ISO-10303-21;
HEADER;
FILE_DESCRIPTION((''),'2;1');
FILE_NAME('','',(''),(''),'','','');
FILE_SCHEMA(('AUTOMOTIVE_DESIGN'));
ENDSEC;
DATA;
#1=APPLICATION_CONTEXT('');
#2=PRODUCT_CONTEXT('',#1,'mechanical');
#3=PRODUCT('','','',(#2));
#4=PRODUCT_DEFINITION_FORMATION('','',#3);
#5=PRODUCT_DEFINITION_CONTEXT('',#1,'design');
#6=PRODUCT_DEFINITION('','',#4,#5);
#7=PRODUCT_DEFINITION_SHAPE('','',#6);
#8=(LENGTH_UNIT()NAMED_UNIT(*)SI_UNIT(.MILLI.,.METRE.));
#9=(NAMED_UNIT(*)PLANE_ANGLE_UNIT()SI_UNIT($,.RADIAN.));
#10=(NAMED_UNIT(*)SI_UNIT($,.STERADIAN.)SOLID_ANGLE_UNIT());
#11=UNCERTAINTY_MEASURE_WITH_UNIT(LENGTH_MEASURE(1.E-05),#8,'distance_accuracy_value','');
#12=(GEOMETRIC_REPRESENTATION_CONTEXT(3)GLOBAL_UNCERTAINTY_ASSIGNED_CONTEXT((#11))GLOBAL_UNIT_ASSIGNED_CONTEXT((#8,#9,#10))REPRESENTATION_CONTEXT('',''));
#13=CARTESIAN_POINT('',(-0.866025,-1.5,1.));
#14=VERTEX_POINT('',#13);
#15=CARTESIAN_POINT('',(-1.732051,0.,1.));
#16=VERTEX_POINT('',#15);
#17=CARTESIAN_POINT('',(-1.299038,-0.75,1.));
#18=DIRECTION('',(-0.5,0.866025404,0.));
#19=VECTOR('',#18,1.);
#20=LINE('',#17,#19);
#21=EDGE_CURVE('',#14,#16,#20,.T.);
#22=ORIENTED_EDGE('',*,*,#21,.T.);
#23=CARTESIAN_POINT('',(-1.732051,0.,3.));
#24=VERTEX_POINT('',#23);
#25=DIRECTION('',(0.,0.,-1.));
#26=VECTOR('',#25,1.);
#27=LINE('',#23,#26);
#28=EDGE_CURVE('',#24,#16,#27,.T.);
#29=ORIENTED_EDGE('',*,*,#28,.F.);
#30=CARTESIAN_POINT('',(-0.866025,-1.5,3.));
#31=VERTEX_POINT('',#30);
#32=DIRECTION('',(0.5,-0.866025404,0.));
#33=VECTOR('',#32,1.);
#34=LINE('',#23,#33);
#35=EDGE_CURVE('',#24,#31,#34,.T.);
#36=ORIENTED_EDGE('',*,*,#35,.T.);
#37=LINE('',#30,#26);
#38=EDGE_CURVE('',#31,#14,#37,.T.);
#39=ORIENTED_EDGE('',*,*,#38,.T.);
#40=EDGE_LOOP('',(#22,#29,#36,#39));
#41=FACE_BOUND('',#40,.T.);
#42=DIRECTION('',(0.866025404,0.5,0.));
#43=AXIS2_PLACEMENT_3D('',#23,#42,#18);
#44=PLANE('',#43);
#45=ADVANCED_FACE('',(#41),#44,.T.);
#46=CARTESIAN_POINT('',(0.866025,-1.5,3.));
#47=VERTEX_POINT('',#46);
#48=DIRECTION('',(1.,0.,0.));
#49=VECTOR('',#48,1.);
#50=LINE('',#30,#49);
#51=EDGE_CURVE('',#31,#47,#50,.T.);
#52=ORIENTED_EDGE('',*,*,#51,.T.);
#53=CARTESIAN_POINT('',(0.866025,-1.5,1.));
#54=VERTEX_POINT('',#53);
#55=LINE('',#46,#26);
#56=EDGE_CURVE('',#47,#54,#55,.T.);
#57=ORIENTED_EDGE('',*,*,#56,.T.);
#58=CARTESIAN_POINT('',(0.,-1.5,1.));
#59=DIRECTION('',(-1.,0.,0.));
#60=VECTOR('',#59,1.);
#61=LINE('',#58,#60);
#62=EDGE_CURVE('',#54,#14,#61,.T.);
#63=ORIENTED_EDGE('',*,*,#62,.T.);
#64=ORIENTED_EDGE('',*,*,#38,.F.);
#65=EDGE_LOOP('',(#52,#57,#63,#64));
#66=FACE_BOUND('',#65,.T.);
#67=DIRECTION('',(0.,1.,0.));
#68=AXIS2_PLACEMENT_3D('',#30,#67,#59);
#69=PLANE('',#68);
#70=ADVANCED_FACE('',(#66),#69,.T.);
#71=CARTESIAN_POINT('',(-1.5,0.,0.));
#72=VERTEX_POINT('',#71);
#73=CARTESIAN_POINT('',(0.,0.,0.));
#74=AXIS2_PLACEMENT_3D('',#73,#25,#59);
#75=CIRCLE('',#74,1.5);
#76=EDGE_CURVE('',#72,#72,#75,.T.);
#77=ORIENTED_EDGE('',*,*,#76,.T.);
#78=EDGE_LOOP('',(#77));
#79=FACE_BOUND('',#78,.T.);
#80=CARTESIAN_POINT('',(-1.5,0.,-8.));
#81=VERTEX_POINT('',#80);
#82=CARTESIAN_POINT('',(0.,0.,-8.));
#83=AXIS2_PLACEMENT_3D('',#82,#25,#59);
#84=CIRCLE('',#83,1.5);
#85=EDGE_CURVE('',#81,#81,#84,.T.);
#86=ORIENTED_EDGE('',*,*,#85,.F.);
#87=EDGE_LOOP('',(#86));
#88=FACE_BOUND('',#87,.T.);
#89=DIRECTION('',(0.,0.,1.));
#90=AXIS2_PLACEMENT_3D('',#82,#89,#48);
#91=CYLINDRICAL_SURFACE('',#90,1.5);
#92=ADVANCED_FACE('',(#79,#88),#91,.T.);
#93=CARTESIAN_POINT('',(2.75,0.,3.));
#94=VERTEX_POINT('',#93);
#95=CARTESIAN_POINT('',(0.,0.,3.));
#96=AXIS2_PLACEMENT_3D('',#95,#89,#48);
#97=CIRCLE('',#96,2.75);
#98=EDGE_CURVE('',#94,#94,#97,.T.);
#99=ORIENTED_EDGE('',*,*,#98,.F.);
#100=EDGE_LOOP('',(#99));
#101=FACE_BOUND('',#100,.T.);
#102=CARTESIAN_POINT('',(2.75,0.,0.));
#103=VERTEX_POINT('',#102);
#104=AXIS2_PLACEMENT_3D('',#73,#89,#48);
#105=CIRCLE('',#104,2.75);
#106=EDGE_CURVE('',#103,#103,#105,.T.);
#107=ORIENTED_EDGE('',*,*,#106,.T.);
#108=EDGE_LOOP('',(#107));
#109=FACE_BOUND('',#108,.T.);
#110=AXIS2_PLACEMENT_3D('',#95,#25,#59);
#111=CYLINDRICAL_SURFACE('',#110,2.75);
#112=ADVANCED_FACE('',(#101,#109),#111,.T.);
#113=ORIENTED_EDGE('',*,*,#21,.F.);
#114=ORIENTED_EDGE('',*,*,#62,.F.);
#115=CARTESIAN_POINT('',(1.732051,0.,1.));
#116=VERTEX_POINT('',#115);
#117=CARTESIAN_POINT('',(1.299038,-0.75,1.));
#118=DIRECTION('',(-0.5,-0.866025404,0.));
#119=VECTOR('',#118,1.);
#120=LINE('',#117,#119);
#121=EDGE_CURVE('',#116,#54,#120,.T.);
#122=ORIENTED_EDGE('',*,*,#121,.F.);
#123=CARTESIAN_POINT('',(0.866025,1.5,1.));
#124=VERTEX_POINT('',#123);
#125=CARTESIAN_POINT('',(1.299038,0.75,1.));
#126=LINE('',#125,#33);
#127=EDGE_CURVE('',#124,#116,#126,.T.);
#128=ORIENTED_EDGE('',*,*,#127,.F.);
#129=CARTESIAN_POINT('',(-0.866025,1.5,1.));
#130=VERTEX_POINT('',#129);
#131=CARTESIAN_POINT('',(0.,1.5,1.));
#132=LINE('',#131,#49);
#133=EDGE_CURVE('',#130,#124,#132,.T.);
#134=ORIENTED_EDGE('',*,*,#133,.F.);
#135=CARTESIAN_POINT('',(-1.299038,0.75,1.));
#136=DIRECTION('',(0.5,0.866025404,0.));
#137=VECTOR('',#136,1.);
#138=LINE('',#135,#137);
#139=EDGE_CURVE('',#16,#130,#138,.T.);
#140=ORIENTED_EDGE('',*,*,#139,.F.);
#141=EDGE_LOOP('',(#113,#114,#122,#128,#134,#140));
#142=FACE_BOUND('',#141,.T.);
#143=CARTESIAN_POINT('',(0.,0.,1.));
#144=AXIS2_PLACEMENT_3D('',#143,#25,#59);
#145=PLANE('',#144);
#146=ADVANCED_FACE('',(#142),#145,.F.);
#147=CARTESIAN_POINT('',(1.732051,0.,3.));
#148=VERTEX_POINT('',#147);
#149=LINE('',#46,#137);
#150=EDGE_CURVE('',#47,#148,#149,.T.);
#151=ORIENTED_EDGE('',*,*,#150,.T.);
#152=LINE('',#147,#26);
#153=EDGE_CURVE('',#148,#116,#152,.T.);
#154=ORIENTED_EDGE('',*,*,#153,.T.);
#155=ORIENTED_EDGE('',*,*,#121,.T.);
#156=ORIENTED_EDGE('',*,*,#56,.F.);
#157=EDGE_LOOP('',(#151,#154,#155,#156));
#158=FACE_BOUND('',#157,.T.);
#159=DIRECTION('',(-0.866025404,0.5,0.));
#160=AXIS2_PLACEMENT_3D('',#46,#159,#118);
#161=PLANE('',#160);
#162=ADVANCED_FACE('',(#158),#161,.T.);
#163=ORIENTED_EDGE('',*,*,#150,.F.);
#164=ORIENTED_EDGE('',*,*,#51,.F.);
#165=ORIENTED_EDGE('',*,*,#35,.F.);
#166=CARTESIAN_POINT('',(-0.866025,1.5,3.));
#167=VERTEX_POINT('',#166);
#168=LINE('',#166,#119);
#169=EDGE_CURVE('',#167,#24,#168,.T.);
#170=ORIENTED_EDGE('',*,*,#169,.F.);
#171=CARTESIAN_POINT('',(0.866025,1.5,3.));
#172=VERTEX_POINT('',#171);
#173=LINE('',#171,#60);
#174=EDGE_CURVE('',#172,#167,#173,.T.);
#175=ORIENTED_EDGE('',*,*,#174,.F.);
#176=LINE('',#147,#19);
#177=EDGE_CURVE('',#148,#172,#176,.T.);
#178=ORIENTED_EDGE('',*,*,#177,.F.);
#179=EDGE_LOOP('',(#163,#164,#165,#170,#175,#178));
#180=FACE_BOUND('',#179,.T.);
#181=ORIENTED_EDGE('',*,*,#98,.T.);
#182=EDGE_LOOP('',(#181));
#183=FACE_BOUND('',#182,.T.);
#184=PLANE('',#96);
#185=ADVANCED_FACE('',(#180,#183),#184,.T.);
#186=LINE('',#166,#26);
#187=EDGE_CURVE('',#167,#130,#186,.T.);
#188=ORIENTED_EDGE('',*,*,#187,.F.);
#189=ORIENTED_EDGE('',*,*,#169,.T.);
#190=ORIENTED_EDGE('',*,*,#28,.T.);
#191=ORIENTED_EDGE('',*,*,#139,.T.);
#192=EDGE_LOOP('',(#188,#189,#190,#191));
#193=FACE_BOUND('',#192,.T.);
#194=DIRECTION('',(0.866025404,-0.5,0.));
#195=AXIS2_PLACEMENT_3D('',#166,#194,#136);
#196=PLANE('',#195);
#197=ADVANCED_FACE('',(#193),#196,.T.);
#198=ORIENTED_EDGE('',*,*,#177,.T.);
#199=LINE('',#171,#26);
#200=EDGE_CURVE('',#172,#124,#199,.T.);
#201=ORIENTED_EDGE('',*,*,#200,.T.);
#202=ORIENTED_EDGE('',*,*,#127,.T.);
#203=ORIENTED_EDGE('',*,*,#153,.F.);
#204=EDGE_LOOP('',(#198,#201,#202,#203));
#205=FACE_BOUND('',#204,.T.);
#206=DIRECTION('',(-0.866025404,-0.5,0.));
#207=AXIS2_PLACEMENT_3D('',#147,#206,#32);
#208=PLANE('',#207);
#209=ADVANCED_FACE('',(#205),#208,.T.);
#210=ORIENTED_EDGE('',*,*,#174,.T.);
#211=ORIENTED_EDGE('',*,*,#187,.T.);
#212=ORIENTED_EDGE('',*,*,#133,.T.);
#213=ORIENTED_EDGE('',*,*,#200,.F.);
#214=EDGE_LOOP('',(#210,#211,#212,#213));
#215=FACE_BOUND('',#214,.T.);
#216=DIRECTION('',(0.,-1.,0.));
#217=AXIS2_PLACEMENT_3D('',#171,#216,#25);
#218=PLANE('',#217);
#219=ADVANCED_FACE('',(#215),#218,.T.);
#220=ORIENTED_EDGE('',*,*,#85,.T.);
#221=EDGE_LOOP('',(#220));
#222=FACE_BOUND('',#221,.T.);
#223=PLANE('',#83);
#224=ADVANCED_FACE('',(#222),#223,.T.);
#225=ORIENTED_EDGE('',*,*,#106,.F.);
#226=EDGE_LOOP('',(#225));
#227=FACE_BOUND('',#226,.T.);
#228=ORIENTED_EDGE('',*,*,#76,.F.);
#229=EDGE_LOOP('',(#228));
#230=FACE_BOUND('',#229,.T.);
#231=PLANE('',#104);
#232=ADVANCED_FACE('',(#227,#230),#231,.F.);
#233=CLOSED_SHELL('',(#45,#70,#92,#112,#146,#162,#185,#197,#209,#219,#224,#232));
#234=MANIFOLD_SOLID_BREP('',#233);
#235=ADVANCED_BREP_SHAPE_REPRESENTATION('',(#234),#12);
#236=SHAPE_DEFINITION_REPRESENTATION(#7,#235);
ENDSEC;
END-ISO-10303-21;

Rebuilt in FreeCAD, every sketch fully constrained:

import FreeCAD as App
import Part
import Sketcher
Q = App.Units.Quantity

doc = App.newDocument("Part")
body = doc.addObject("PartDesign::Body", "Body")

sketch1 = body.newObject("Sketcher::SketchObject", "Sketch")
sketch1.AttachmentSupport = (doc.getObject("XY_Plane"), [""])
sketch1.MapMode = "FlatFace"
sketch1.addGeometry(Part.Circle(App.Vector(0, 0, 0), App.Vector(0, 0, 1), 2.8), False)
sketch1.addGeometry(Part.LineSegment(App.Vector(0.9, 1.5, 0), App.Vector(1.7, 0, 0)), False)
sketch1.addGeometry(Part.LineSegment(App.Vector(1.7, 0, 0), App.Vector(0.9, -1.5, 0)), False)
sketch1.addGeometry(Part.LineSegment(App.Vector(0.9, -1.5, 0), App.Vector(-0.9, -1.5, 0)), False)
sketch1.addGeometry(Part.LineSegment(App.Vector(-0.9, -1.5, 0), App.Vector(-1.7, 0, 0)), False)
sketch1.addGeometry(Part.LineSegment(App.Vector(-1.7, 0, 0), App.Vector(-0.9, 1.5, 0)), False)
sketch1.addGeometry(Part.LineSegment(App.Vector(-0.9, 1.5, 0), App.Vector(0.9, 1.5, 0)), False)
sketch1.addConstraint(Sketcher.Constraint("Coincident", 1, 2, 2, 1))
sketch1.addConstraint(Sketcher.Constraint("Coincident", 2, 2, 3, 1))
sketch1.addConstraint(Sketcher.Constraint("Coincident", 3, 2, 4, 1))
sketch1.addConstraint(Sketcher.Constraint("Coincident", 4, 2, 5, 1))
sketch1.addConstraint(Sketcher.Constraint("Coincident", 5, 2, 6, 1))
sketch1.addConstraint(Sketcher.Constraint("Coincident", 6, 2, 1, 1))
sketch1.addConstraint(Sketcher.Constraint("Horizontal", 3))
sketch1.addConstraint(Sketcher.Constraint("Horizontal", 6))
sketch1.addConstraint(Sketcher.Constraint("Coincident", 0, 3, -1, 1))
sketch1.addConstraint(Sketcher.Constraint("Symmetric", 1, 2, 4, 2, -1, 1))
sketch1.addConstraint(Sketcher.Constraint("Symmetric", 2, 2, 5, 2, -1, 1))
sketch1.addConstraint(Sketcher.Constraint("PointOnObject", 1, 2, -1))
sketch1.addConstraint(Sketcher.Constraint("Parallel", 1, 4))
sketch1.addConstraint(Sketcher.Constraint("Vertical", 3, 2, 5, 2))
sketch1.addConstraint(Sketcher.Constraint("Diameter", 0, 5.5))
sketch1.addConstraint(Sketcher.Constraint("Angle", 1, Q("-60 deg")))
sketch1.addConstraint(Sketcher.Constraint("DistanceY", 3, 2, 5, 2, 3.0))
sketch1.addConstraint(Sketcher.Constraint("DistanceX", 3, 2, 3, 1, 1.732051))
pad1 = body.newObject("PartDesign::Pad", "Pad")
pad1.Profile = sketch1
pad1.Length = 3
body2 = doc.addObject("PartDesign::Body", "Body001")

sketch2 = body2.newObject("Sketcher::SketchObject", "Sketch001")
sketch2.AttachmentSupport = (doc.getObject("XY_Plane001"), [""])
sketch2.MapMode = "FlatFace"
sketch2.addGeometry(Part.Circle(App.Vector(0, 0, 0), App.Vector(0, 0, 1), 1.5), False)
sketch2.addConstraint(Sketcher.Constraint("Coincident", 0, 3, -1, 1))
sketch2.addConstraint(Sketcher.Constraint("Diameter", 0, 3.0))
pad2 = body2.newObject("PartDesign::Pad", "Pad001")
pad2.Profile = sketch2
pad2.Length = 8
pad2.Reversed = True
body.AllowCompound = True
doc.recompute()

boolean = body.newObject("PartDesign::Boolean", "Boolean")
boolean.Type = "Fuse"
boolean.addObjects([body2])

sketch3 = body.newObject("Sketcher::SketchObject", "Sketch002")
sketch3.AttachmentSupport = (doc.getObject("XY_Plane"), [""])
sketch3.MapMode = "FlatFace"
sketch3.addGeometry(Part.LineSegment(App.Vector(-0.9, -1.5, 0), App.Vector(0.9, -1.5, 0)), False)
sketch3.addGeometry(Part.LineSegment(App.Vector(0.9, -1.5, 0), App.Vector(1.7, 0, 0)), False)
sketch3.addGeometry(Part.LineSegment(App.Vector(1.7, 0, 0), App.Vector(0.9, 1.5, 0)), False)
sketch3.addGeometry(Part.LineSegment(App.Vector(0.9, 1.5, 0), App.Vector(-0.9, 1.5, 0)), False)
sketch3.addGeometry(Part.LineSegment(App.Vector(-0.9, 1.5, 0), App.Vector(-1.7, 0, 0)), False)
sketch3.addGeometry(Part.LineSegment(App.Vector(-1.7, 0, 0), App.Vector(-0.9, -1.5, 0)), False)
sketch3.addConstraint(Sketcher.Constraint("Coincident", 0, 2, 1, 1))
sketch3.addConstraint(Sketcher.Constraint("Coincident", 1, 2, 2, 1))
sketch3.addConstraint(Sketcher.Constraint("Coincident", 2, 2, 3, 1))
sketch3.addConstraint(Sketcher.Constraint("Coincident", 3, 2, 4, 1))
sketch3.addConstraint(Sketcher.Constraint("Coincident", 4, 2, 5, 1))
sketch3.addConstraint(Sketcher.Constraint("Coincident", 5, 2, 0, 1))
sketch3.addConstraint(Sketcher.Constraint("Horizontal", 0))
sketch3.addConstraint(Sketcher.Constraint("Horizontal", 3))
sketch3.addConstraint(Sketcher.Constraint("Symmetric", 0, 2, 3, 2, -1, 1))
sketch3.addConstraint(Sketcher.Constraint("Symmetric", 1, 2, 4, 2, -1, 1))
sketch3.addConstraint(Sketcher.Constraint("PointOnObject", 1, 2, -1))
sketch3.addConstraint(Sketcher.Constraint("Parallel", 2, 5))
sketch3.addConstraint(Sketcher.Constraint("Vertical", 0, 2, 2, 2))
sketch3.addConstraint(Sketcher.Constraint("Angle", 1, Q("60 deg")))
sketch3.addConstraint(Sketcher.Constraint("DistanceY", 0, 2, 2, 2, 3.0))
sketch3.addConstraint(Sketcher.Constraint("DistanceX", 0, 1, 0, 2, 1.732051))
pad3 = body.newObject("PartDesign::Pad", "Pad002")
pad3.Profile = sketch3
pad3.Length = 1

doc.recompute()
